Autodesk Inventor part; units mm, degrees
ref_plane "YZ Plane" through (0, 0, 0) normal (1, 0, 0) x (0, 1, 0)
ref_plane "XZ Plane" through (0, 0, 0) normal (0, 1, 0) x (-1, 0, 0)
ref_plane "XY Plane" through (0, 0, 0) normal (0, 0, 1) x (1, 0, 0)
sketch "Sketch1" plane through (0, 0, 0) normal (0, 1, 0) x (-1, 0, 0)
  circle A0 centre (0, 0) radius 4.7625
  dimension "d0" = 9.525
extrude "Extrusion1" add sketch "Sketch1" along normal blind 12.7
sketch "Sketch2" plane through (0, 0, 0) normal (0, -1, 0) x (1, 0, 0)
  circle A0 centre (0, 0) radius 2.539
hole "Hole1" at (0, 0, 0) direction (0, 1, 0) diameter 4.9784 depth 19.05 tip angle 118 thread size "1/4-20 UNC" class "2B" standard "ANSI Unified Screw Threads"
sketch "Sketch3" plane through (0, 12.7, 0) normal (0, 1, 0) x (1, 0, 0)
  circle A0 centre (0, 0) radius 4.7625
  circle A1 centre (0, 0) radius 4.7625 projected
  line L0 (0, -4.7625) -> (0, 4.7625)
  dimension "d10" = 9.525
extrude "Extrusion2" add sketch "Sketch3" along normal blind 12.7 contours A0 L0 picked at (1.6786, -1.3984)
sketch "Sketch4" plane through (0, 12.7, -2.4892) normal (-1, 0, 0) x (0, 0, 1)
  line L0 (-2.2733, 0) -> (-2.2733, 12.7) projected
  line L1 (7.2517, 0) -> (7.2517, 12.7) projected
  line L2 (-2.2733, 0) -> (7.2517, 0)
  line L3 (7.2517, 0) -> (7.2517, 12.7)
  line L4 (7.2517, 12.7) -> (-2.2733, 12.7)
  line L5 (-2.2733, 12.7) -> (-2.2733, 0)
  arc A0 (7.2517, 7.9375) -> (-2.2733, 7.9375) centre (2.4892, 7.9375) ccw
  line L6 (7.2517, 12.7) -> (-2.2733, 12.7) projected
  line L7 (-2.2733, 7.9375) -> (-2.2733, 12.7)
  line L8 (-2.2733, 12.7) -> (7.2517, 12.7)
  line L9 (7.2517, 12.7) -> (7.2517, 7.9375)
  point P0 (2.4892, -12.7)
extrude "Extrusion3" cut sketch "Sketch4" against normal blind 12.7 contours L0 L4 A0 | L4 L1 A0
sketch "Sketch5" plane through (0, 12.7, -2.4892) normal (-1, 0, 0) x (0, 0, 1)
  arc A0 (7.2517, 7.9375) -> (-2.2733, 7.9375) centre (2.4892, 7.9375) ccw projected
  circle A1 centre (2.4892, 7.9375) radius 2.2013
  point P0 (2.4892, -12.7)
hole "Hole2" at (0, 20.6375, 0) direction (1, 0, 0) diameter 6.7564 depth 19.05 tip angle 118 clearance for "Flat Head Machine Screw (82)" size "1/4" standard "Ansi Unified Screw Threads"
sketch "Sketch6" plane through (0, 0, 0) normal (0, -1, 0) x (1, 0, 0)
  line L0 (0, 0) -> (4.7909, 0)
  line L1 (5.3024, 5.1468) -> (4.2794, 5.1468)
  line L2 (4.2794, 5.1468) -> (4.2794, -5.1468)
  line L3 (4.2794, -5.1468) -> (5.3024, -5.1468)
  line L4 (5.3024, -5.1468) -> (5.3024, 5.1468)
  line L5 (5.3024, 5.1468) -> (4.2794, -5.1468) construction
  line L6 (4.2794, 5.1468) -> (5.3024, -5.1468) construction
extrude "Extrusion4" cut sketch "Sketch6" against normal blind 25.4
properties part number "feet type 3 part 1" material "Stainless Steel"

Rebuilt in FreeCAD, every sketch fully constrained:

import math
import FreeCAD as App
import Part
import Sketcher
Q = App.Units.Quantity


def add_polygon(sketch, points):
    """Adds a closed chain of lines whose ends are joined by coincident constraints."""
    first, n = sketch.GeometryCount, len(points)
    for a, b in zip(points, points[1:] + points[:1]):
        sketch.addGeometry(Part.LineSegment(App.Vector(*a, 0), App.Vector(*b, 0)), False)
    for i in range(n):
        sketch.addConstraint(Sketcher.Constraint("Coincident", first + i, 2, first + (i + 1) % n, 1))

doc = App.newDocument("Part")
body = doc.addObject("PartDesign::Body", "Body")

sketch1 = doc.addObject("Sketcher::SketchObject", "Sketch")
body.addObject(sketch1)
sketch1.AttachmentSupport = (doc.XZ_Plane, [""])
sketch1.MapMode = "FlatFace"
sketch1.addGeometry(Part.Circle(App.Vector(0, 0, 0), App.Vector(0, 0, 1), 4.8), False)
sketch1.addConstraint(Sketcher.Constraint("Coincident", 0, 3, -1, 1))
sketch1.addConstraint(Sketcher.Constraint("Diameter", 0, Q("0.375 in")))
pad1 = doc.addObject("PartDesign::Pad", "Pad")
body.addObject(pad1)
pad1.Profile = sketch1
pad1.Length = Q("0.5 in")
pad1.Reversed = True

sketch2 = doc.addObject("Sketcher::SketchObject", "Sketch001")
body.addObject(sketch2)
sketch2.AttachmentSupport = (doc.XZ_Plane, [""])
sketch2.MapMode = "FlatFace"
sketch2.addGeometry(Part.Circle(App.Vector(0, 0, 0), App.Vector(0, 0, 1), 2.5), False)
sketch2.addConstraint(Sketcher.Constraint("Coincident", 0, 3, -1, 1))
sketch2.addConstraint(Sketcher.Constraint("Diameter", 0, Q("0.196 in")))
doc.recompute()
hole = doc.addObject("PartDesign::Hole", "Hole")
body.addObject(hole)
hole.Profile = sketch2
hole.ThreadType = "None"
hole.Diameter = Q("0.196 in")
hole.DepthType = "Dimension"
hole.Depth = Q("0.75 in")
hole.DrillPoint = "Angled"
hole.DrillPointAngle = 118

sketch3 = doc.addObject("Sketcher::SketchObject", "Sketch002")
body.addObject(sketch3)
sketch3.AttachmentSupport = (doc.XZ_Plane, [""])
sketch3.MapMode = "FlatFace"
sketch3.AttachmentOffset = App.Placement(App.Vector(0, 0, -0.5 * 25.4), App.Rotation())
sketch3.addGeometry(Part.ArcOfCircle(Part.Circle(App.Vector(0, 0, 0), App.Vector(0, 0, 1), 4.8), math.radians(-90), math.radians(90)), False)
sketch3.addGeometry(Part.LineSegment(App.Vector(0, -4.8, 0), App.Vector(0, 4.8, 0)), False)
sketch3.addConstraint(Sketcher.Constraint("Coincident", 0, 1, 1, 1))
sketch3.addConstraint(Sketcher.Constraint("Coincident", 1, 2, 0, 2))
sketch3.addConstraint(Sketcher.Constraint("Vertical", 1))
sketch3.addConstraint(Sketcher.Constraint("Coincident", 0, 3, -1, 1))
sketch3.addConstraint(Sketcher.Constraint("PointOnObject", 0, 1, -2))
sketch3.addConstraint(Sketcher.Constraint("Radius", 0, Q("0.1875 in")))
pad2 = doc.addObject("PartDesign::Pad", "Pad001")
body.addObject(pad2)
pad2.Profile = sketch3
pad2.Length = Q("0.5 in")
pad2.Reversed = True

sketch4 = doc.addObject("Sketcher::SketchObject", "Sketch003")
body.addObject(sketch4)
sketch4.AttachmentSupport = (doc.YZ_Plane, [""])
sketch4.MapMode = "FlatFace"
sketch4.addGeometry(Part.LineSegment(App.Vector(25.4, -4.8, 0), App.Vector(20.6, -4.8, 0)), False)
sketch4.addGeometry(Part.ArcOfCircle(Part.Circle(App.Vector(20.6, 0, 0), App.Vector(0, 0, 1), 4.8), math.radians(-90), math.radians(0)), False)
sketch4.addGeometry(Part.LineSegment(App.Vector(25.4, 0, 0), App.Vector(25.4, -4.8, 0)), False)
sketch4.addGeometry(Part.LineSegment(App.Vector(25.4, 4.8, 0), App.Vector(25.4, 0, 0)), False)
sketch4.addGeometry(Part.ArcOfCircle(Part.Circle(App.Vector(20.6, 0, 0), App.Vector(0, 0, 1), 4.8), math.radians(0), math.radians(90)), False)
sketch4.addGeometry(Part.LineSegment(App.Vector(20.6, 4.8, 0), App.Vector(25.4, 4.8, 0)), False)
sketch4.addConstraint(Sketcher.Constraint("Tangent", 0, 2, 1, 1))
sketch4.addConstraint(Sketcher.Constraint("Tangent", 1, 2, 2, 1))
sketch4.addConstraint(Sketcher.Constraint("Coincident", 2, 2, 0, 1))
sketch4.addConstraint(Sketcher.Constraint("Tangent", 3, 2, 4, 1))
sketch4.addConstraint(Sketcher.Constraint("Tangent", 4, 2, 5, 1))
sketch4.addConstraint(Sketcher.Constraint("Coincident", 5, 2, 3, 1))
sketch4.addConstraint(Sketcher.Constraint("Horizontal", 0))
sketch4.addConstraint(Sketcher.Constraint("Vertical", 2))
sketch4.addConstraint(Sketcher.Constraint("Vertical", 3))
sketch4.addConstraint(Sketcher.Constraint("Horizontal", 5))
sketch4.addConstraint(Sketcher.Constraint("Coincident", 4, 3, 1, 3))
sketch4.addConstraint(Sketcher.Constraint("Equal", 1, 4))
sketch4.addConstraint(Sketcher.Constraint("PointOnObject", 1, 3, -1))
sketch4.addConstraint(Sketcher.Constraint("DistanceX", -1, 1, 1, 2, Q("1 in")))
sketch4.addConstraint(Sketcher.Constraint("Radius", 1, Q("0.1875 in")))
pocket1 = doc.addObject("PartDesign::Pocket", "Pocket")
body.addObject(pocket1)
pocket1.Profile = sketch4
pocket1.Length = Q("0.5 in")
pocket1.Reversed = True

sketch5 = doc.addObject("Sketcher::SketchObject", "Sketch004")
body.addObject(sketch5)
sketch5.AttachmentSupport = (doc.YZ_Plane, [""])
sketch5.MapMode = "FlatFace"
sketch5.addGeometry(Part.Circle(App.Vector(20.6, 0, 0), App.Vector(0, 0, 1), 3.4), False)
sketch5.addConstraint(Sketcher.Constraint("PointOnObject", 0, 3, -1))
sketch5.addConstraint(Sketcher.Constraint("Diameter", 0, Q("0.266 in")))
sketch5.addConstraint(Sketcher.Constraint("DistanceX", -1, 1, 0, 3, Q("0.8125 in")))
doc.recompute()
hole2 = doc.addObject("PartDesign::Hole", "Hole001")
body.addObject(hole2)
hole2.Profile = sketch5
hole2.ThreadType = "None"
hole2.Diameter = Q("0.266 in")
hole2.DepthType = "Dimension"
hole2.Depth = Q("0.75 in")
hole2.DrillPoint = "Angled"
hole2.DrillPointAngle = 118
hole2.Reversed = True

sketch6 = doc.addObject("Sketcher::SketchObject", "Sketch005")
body.addObject(sketch6)
sketch6.AttachmentSupport = (doc.XZ_Plane, [""])
sketch6.MapMode = "FlatFace"
add_polygon(sketch6, [(5.3, -5.1), (5.3, 5.1), (4.3, 5.1), (4.3, -5.1)])
sketch6.addConstraint(Sketcher.Constraint("Vertical", 0))
sketch6.addConstraint(Sketcher.Constraint("Horizontal", 1))
sketch6.addConstraint(Sketcher.Constraint("Vertical", 2))
sketch6.addConstraint(Sketcher.Constraint("Horizontal", 3))
sketch6.addConstraint(Sketcher.Constraint("DistanceX", 1, 2, 1, 1, 1.023))
sketch6.addConstraint(Sketcher.Constraint("DistanceY", 0, 1, 0, 2, 10.2936))
sketch6.addConstraint(Sketcher.Constraint("DistanceX", -1, 1, 0, 2, 5.3024))
sketch6.addConstraint(Sketcher.Constraint("DistanceY", -1, 1, 0, 2, 5.1468))
pocket2 = doc.addObject("PartDesign::Pocket", "Pocket001")
body.addObject(pocket2)
pocket2.Profile = sketch6
pocket2.Length = Q("1 in")

doc.recompute()
